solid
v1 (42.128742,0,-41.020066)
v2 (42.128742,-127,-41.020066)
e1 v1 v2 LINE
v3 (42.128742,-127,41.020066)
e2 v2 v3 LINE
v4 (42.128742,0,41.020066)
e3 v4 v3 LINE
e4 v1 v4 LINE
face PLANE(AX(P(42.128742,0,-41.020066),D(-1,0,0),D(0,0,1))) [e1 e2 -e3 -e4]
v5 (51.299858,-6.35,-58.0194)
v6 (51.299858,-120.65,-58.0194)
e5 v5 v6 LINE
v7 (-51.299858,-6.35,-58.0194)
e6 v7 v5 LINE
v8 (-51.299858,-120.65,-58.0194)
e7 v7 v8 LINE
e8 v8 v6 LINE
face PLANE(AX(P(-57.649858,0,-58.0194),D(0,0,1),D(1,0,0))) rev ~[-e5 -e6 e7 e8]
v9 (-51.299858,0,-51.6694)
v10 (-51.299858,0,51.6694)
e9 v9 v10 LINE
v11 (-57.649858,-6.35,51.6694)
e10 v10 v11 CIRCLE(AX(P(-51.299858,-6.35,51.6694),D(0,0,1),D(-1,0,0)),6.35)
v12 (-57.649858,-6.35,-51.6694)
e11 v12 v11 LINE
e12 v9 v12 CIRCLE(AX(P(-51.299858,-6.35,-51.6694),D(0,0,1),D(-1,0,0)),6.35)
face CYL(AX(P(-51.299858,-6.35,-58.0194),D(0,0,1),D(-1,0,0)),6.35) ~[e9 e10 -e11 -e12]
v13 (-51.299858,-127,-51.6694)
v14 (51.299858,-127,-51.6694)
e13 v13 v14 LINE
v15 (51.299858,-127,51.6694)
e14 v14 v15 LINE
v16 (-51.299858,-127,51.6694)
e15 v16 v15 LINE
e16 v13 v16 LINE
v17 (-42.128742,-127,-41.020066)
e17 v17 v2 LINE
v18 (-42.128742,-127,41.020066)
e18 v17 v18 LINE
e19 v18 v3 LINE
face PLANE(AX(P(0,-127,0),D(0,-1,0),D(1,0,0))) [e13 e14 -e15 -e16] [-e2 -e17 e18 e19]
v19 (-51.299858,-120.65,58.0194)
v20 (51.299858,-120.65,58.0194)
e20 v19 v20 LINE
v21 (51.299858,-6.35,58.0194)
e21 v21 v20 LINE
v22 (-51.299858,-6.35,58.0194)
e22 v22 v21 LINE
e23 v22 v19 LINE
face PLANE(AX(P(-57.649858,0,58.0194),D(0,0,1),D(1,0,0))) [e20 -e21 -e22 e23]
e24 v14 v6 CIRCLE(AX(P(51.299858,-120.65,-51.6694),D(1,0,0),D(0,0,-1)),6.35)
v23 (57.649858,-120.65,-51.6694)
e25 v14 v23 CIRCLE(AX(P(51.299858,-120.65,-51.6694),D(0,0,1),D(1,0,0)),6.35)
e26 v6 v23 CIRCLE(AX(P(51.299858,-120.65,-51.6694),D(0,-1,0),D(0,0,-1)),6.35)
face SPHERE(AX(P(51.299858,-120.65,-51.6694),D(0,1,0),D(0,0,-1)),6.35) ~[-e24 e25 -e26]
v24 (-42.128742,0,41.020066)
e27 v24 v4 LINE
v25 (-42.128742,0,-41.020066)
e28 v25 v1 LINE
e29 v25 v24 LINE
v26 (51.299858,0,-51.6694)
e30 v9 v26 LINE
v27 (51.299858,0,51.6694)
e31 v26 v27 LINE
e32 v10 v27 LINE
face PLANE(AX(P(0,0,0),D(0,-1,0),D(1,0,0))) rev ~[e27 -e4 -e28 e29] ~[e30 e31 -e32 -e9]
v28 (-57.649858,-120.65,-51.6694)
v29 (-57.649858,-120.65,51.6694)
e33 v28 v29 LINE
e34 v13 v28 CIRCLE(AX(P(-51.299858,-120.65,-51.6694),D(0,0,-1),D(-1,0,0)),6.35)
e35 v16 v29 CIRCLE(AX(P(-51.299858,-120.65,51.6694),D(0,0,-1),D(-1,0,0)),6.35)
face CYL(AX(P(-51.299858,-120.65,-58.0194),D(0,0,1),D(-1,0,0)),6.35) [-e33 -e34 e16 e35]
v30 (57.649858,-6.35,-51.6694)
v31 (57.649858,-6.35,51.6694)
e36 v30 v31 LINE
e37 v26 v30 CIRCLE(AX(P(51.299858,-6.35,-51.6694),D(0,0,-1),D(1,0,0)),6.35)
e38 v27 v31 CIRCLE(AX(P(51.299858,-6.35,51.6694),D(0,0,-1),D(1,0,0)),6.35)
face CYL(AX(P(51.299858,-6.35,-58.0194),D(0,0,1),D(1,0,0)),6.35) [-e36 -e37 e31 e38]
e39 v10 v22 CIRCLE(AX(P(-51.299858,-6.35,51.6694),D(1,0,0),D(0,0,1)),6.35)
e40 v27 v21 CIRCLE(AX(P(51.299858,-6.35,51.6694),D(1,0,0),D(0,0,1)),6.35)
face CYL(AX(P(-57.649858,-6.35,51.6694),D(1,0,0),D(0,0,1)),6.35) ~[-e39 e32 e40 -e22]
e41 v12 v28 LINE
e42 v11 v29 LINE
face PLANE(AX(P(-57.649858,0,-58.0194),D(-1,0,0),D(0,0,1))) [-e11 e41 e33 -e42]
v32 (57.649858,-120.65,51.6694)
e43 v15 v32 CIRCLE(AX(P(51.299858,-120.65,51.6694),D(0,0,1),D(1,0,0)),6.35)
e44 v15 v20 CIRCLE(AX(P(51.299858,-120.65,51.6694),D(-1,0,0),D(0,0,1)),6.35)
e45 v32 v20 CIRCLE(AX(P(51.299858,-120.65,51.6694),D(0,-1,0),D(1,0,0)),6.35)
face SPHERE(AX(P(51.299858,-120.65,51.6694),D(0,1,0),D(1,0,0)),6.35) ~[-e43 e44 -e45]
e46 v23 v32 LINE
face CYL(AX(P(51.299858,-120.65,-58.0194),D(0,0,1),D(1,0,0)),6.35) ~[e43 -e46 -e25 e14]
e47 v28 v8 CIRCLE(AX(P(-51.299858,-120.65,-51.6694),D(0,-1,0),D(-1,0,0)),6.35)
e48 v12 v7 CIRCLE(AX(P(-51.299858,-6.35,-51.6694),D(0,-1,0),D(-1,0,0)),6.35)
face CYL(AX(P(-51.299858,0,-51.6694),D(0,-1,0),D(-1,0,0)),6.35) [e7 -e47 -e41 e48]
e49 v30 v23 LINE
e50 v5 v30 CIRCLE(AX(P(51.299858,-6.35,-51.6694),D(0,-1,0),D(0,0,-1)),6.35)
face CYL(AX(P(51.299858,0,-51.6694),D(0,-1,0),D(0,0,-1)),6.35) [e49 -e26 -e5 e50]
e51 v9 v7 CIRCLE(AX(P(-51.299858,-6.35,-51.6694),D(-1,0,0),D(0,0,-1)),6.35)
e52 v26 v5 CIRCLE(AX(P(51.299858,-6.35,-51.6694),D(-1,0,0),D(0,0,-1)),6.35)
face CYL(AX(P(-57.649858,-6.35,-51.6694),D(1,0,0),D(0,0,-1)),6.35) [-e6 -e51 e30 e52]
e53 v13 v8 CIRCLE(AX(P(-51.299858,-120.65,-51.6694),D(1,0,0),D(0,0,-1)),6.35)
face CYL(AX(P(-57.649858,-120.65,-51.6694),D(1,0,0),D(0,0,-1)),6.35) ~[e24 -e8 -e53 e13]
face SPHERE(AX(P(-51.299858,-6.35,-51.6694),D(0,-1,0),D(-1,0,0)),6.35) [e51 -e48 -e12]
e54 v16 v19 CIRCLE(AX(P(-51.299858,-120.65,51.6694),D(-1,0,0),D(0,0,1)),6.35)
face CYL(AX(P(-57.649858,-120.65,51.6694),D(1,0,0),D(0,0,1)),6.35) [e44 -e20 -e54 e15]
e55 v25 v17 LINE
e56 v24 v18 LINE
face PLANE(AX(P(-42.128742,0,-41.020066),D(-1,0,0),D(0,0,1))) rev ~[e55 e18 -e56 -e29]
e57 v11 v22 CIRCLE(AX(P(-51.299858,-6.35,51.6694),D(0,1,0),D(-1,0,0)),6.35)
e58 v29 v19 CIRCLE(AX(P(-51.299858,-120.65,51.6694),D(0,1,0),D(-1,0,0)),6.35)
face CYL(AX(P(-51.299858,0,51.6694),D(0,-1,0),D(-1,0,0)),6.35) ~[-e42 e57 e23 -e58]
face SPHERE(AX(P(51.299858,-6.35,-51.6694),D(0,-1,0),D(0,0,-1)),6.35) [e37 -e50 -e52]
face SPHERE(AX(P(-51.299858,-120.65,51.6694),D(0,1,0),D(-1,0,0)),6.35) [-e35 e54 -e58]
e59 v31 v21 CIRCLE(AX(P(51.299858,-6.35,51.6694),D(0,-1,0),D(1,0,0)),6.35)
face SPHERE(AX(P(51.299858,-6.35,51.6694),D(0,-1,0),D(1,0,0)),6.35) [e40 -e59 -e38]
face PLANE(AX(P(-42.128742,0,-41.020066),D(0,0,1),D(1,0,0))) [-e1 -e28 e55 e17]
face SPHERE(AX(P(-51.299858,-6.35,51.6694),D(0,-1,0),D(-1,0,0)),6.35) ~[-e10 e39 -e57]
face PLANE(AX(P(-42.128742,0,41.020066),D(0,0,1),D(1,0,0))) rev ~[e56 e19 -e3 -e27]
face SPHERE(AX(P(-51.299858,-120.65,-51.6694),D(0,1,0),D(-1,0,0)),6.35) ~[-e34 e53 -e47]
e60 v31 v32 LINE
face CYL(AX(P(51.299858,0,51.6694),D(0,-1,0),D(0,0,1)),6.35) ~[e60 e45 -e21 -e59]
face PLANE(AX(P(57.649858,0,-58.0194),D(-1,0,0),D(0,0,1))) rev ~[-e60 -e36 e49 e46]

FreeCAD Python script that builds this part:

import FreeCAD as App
import Part
import Sketcher
Q = App.Units.Quantity


def edges_at(feature, points):
    """Names of the edges that pass closest to the given points."""
    edges = feature.Shape.Edges
    near = lambda p: min(range(len(edges)), key=lambda i: edges[i].distToShape(Part.Vertex(*p))[0])
    return sorted({f"Edge{near(p) + 1}" for p in points})


def add_polygon(sketch, points):
    """Adds a closed chain of lines whose ends are joined by coincident constraints."""
    first, n = sketch.GeometryCount, len(points)
    for a, b in zip(points, points[1:] + points[:1]):
        sketch.addGeometry(Part.LineSegment(App.Vector(*a, 0), App.Vector(*b, 0)), False)
    for i in range(n):
        sketch.addConstraint(Sketcher.Constraint("Coincident", first + i, 2, first + (i + 1) % n, 1))

doc = App.newDocument("Part")
body = doc.addObject("PartDesign::Body", "Body")

sketch1 = doc.addObject("Sketcher::SketchObject", "Sketch")
body.addObject(sketch1)
sketch1.AttachmentSupport = (doc.XZ_Plane, [""])
sketch1.MapMode = "FlatFace"
add_polygon(sketch1, [(-57.649858, 58.0194), (-57.649858, -58.0194), (57.649858, -58.0194), (57.649858, 58.0194)])
add_polygon(sketch1, [(42.128742, -41.020066), (-42.128742, -41.020066), (-42.128742, 41.020066), (42.128742, 41.020066)])
sketch1.addConstraint(Sketcher.Constraint("Vertical", 0))
sketch1.addConstraint(Sketcher.Constraint("Horizontal", 1))
sketch1.addConstraint(Sketcher.Constraint("Vertical", 2))
sketch1.addConstraint(Sketcher.Constraint("Horizontal", 3))
sketch1.addConstraint(Sketcher.Constraint("Horizontal", 4))
sketch1.addConstraint(Sketcher.Constraint("Vertical", 5))
sketch1.addConstraint(Sketcher.Constraint("Horizontal", 6))
sketch1.addConstraint(Sketcher.Constraint("Vertical", 7))
sketch1.addConstraint(Sketcher.Constraint("Symmetric", 0, 2, 2, 2, -1, 1))
sketch1.addConstraint(Sketcher.Constraint("Symmetric", 4, 2, 6, 2, -1, 1))
sketch1.addConstraint(Sketcher.Constraint("DistanceY", 0, 2, 0, 1, Q("116.0388 mm")))
sketch1.addConstraint(Sketcher.Constraint("DistanceY", 5, 1, 5, 2, Q("82.040132 mm")))
sketch1.addConstraint(Sketcher.Constraint("DistanceX", 4, 2, 1, 2, Q("99.7786 mm")))
sketch1.addConstraint(Sketcher.Constraint("DistanceX", 1, 1, 1, 2, Q("115.299716 mm")))
pad1 = doc.addObject("PartDesign::Pad", "Pad")
body.addObject(pad1)
pad1.Profile = sketch1
pad1.Length = Q("5 in")
doc.recompute()

fillet = doc.addObject("PartDesign::Fillet", "Fillet")
body.addObject(fillet)
fillet.Base = (pad1, edges_at(pad1, [
    (-57.65, -63.5, 58.019),
    (-57.65, -63.5, -58.019),
    (-57.65, 0, 0),
    (-57.65, -127, 0),
    (57.65, -63.5, -58.019),
    (0, 0, -58.019),
    (0, -127, -58.019),
    (57.65, -63.5, 58.019),
    (57.65, 0, 0),
    (57.65, -127, 0),
    (0, 0, 58.019),
    (0, -127, 58.019),
]))
fillet.Radius = Q("0.25 in")

doc.recompute()
